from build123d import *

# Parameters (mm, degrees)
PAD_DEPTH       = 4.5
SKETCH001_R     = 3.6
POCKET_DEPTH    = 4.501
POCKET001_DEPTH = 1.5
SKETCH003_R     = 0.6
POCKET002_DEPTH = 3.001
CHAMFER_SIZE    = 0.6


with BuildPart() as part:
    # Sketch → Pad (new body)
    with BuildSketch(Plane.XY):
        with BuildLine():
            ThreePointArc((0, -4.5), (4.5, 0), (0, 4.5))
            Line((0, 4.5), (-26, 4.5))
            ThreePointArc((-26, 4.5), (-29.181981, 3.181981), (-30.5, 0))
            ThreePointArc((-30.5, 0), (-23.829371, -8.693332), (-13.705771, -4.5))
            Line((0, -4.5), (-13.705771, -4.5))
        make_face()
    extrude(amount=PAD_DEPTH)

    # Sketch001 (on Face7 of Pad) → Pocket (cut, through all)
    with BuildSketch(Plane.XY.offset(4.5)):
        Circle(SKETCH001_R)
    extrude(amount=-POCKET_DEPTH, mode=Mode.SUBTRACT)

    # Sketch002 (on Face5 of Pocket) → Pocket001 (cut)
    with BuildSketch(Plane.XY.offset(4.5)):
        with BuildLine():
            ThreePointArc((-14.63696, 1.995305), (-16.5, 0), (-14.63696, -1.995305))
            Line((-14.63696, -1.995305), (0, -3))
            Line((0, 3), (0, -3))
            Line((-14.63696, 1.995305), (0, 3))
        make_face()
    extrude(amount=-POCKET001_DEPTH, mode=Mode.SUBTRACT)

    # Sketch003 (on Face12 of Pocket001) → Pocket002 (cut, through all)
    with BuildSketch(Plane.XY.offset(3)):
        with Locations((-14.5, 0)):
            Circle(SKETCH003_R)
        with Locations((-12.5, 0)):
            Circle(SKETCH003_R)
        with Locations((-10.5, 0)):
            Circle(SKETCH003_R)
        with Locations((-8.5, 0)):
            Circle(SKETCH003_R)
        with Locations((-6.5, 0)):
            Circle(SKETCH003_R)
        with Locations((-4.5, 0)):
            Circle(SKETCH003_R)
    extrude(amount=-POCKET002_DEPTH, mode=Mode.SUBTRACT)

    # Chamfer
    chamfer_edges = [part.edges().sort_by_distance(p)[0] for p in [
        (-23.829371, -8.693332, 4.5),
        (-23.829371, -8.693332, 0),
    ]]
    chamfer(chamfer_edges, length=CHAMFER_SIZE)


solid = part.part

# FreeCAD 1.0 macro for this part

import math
import FreeCAD as App
import Part
import Sketcher

V = App.Vector


def edges_at(feature, points):
    """Names of the edges that pass closest to the given points."""
    edges = feature.Shape.Edges
    near = lambda p: min(range(len(edges)), key=lambda i: edges[i].distToShape(Part.Vertex(*p))[0])
    return sorted({f"Edge{near(p) + 1}" for p in points})

doc = App.newDocument("Part")
params = doc.addObject("Spreadsheet::Sheet", "Params")
for row, (alias, value) in enumerate([
    ("sketch1_radius", "9 mm"),
    ("sketch1_radius2", "4.5 mm"),
    ("sketch1_width", "26 mm"),
    ("pad1_length", "4.5 mm"),
    ("sketch2_diameter", "7.2 mm"),
    ("sketch3_radius", "2 mm"),
    ("sketch3_height", "6 mm"),
    ("pocket2_length", "1.5 mm"),
    ("sketch4_diameter", "1.2 mm"),
    ("chamfer_size", "0.6 mm"),
], start=1):
    params.set(f"A{row}", alias)
    params.set(f"B{row}", "=" + value)
    params.setAlias(f"B{row}", alias)

body = doc.addObject("PartDesign::Body", "Body")

# Sketch on XY plane
sketch1 = body.newObject("Sketcher::SketchObject", "Sketch")
sketch1.AttachmentSupport = (doc.getObject("XY_Plane"), [""])
sketch1.MapMode = "FlatFace"
sketch1.addGeometry(Part.ArcOfCircle(Part.Circle(V(0, 0, 0), V(0, 0, 1), 4.5), math.radians(-90), math.radians(90)), False)
sketch1.addGeometry(Part.LineSegment(V(0, 4.5, 0), V(-26, 4.5, 0)), False)
sketch1.addGeometry(Part.ArcOfCircle(Part.Circle(V(-26.000002, 0.000002, 0), V(0, 0, 1), 4.499998), math.radians(89.999979), math.radians(180.000021)), False)
sketch1.addGeometry(Part.ArcOfCircle(Part.Circle(V(-21.5, 0.000001, 0), V(0, 0, 1), 9), math.radians(-179.999995), math.radians(-30.000005)), False)
sketch1.addGeometry(Part.LineSegment(V(-13.705771, -4.5, 0), V(0, -4.5, 0)), False)
sketch1.addConstraint(Sketcher.Constraint("Tangent", 0, 2, 1, 1))
sketch1.addConstraint(Sketcher.Constraint("Tangent", 1, 2, 2, 1))
sketch1.addConstraint(Sketcher.Constraint("Tangent", 2, 2, 3, 1))
sketch1.addConstraint(Sketcher.Constraint("Coincident", 3, 2, 4, 1))
sketch1.addConstraint(Sketcher.Constraint("Tangent", 4, 2, 0, 1))
sketch1.addConstraint(Sketcher.Constraint("Horizontal", 1))
sketch1.addConstraint(Sketcher.Constraint("Horizontal", 4))
sketch1.addConstraint(Sketcher.Constraint("Coincident", 0, 3, -1, 1))
sketch1.addConstraint(Sketcher.Constraint("Equal", 0, 2))
sketch1.addConstraint(Sketcher.Constraint("PointOnObject", 3, 3, -1))
sketch1.addConstraint(Sketcher.Constraint("Radius", 3, 9.0))
sketch1.addConstraint(Sketcher.Constraint("Radius", 0, 4.5))
sketch1.addConstraint(Sketcher.Constraint("DistanceX", 1, 2, 1, 1, 26.0))
sketch1.setExpression("Constraints[10]", "Params.sketch1_radius")
sketch1.setExpression("Constraints[11]", "Params.sketch1_radius2")
sketch1.setExpression("Constraints[12]", "Params.sketch1_width")
pad1 = body.newObject("PartDesign::Pad", "Pad")
pad1.Profile = sketch1
pad1.setExpression("Length", "Params.pad1_length")

# Sketch on XY plane
sketch2 = body.newObject("Sketcher::SketchObject", "Sketch001")
sketch2.AttachmentSupport = (doc.getObject("XY_Plane"), [""])
sketch2.MapMode = "FlatFace"
sketch2.AttachmentOffset = App.Placement(V(0, 0, 4.5), App.Rotation())
sketch2.addGeometry(Part.Circle(V(0, 0, 0), V(0, 0, 1), 3.6), False)
sketch2.addConstraint(Sketcher.Constraint("Coincident", 0, 3, -1, 1))
sketch2.addConstraint(Sketcher.Constraint("Diameter", 0, 7.2))
sketch2.setExpression("Constraints[1]", "Params.sketch2_diameter")
pocket1 = body.newObject("PartDesign::Pocket", "Pocket")
pocket1.Profile = sketch2
pocket1.Type = "ThroughAll"

# Sketch on XY plane
sketch3 = body.newObject("Sketcher::SketchObject", "Sketch002")
sketch3.AttachmentSupport = (doc.getObject("XY_Plane"), [""])
sketch3.MapMode = "FlatFace"
sketch3.AttachmentOffset = App.Placement(V(0, 0, 4.5), App.Rotation())
sketch3.addGeometry(Part.ArcOfCircle(Part.Circle(V(-14.5, 0, 0), V(0, 0, 1), 2), math.radians(93.926689), math.radians(266.073311)), False)
sketch3.addGeometry(Part.LineSegment(V(-14.63696, -1.995305, 0), V(0, -3, 0)), False)
sketch3.addGeometry(Part.LineSegment(V(0, -3, 0), V(0, 3, 0)), False)
sketch3.addGeometry(Part.LineSegment(V(0, 3, 0), V(-14.63696, 1.995305, 0)), False)
sketch3.addConstraint(Sketcher.Constraint("Tangent", 0, 2, 1, 1))
sketch3.addConstraint(Sketcher.Constraint("Coincident", 1, 2, 2, 1))
sketch3.addConstraint(Sketcher.Constraint("Coincident", 2, 2, 3, 1))
sketch3.addConstraint(Sketcher.Constraint("Tangent", 3, 2, 0, 1))
sketch3.addConstraint(Sketcher.Constraint("Vertical", 2))
sketch3.addConstraint(Sketcher.Constraint("Symmetric", 1, 2, 2, 2, -1, 1))
sketch3.addConstraint(Sketcher.Constraint("PointOnObject", 0, 3, -1))
sketch3.addConstraint(Sketcher.Constraint("Radius", 0, 2.0))
sketch3.addConstraint(Sketcher.Constraint("DistanceY", 2, 1, 2, 2, 6.0))
sketch3.addConstraint(Sketcher.Constraint("DistanceX", 0, 3, -1, 1, 14.5))
sketch3.setExpression("Constraints[7]", "Params.sketch3_radius")
sketch3.setExpression("Constraints[8]", "Params.sketch3_height")
pocket2 = body.newObject("PartDesign::Pocket", "Pocket001")
pocket2.Profile = sketch3
pocket2.setExpression("Length", "Params.pocket2_length")

# Sketch on XY plane
sketch4 = body.newObject("Sketcher::SketchObject", "Sketch003")
sketch4.AttachmentSupport = (doc.getObject("XY_Plane"), [""])
sketch4.MapMode = "FlatFace"
sketch4.AttachmentOffset = App.Placement(V(0, 0, 3), App.Rotation())
sketch4.addGeometry(Part.Circle(V(-14.5, 0, 0), V(0, 0, 1), 0.6), False)
sketch4.addGeometry(Part.Circle(V(-12.5, 0, 0), V(0, 0, 1), 0.6), False)
sketch4.addGeometry(Part.Circle(V(-10.5, 0, 0), V(0, 0, 1), 0.6), False)
sketch4.addGeometry(Part.Circle(V(-8.5, 0, 0), V(0, 0, 1), 0.6), False)
sketch4.addGeometry(Part.Circle(V(-6.5, 0, 0), V(0, 0, 1), 0.6), False)
sketch4.addGeometry(Part.Circle(V(-4.5, 0, 0), V(0, 0, 1), 0.6), False)
sketch4.addConstraint(Sketcher.Constraint("Equal", 0, 1))
sketch4.addConstraint(Sketcher.Constraint("Equal", 1, 2))
sketch4.addConstraint(Sketcher.Constraint("Equal", 2, 3))
sketch4.addConstraint(Sketcher.Constraint("Equal", 3, 4))
sketch4.addConstraint(Sketcher.Constraint("Equal", 4, 5))
sketch4.addConstraint(Sketcher.Constraint("PointOnObject", 0, 3, -1))
sketch4.addConstraint(Sketcher.Constraint("PointOnObject", 1, 3, -1))
sketch4.addConstraint(Sketcher.Constraint("PointOnObject", 2, 3, -1))
sketch4.addConstraint(Sketcher.Constraint("PointOnObject", 3, 3, -1))
sketch4.addConstraint(Sketcher.Constraint("PointOnObject", 4, 3, -1))
sketch4.addConstraint(Sketcher.Constraint("PointOnObject", 5, 3, -1))
sketch4.addConstraint(Sketcher.Constraint("Diameter", 0, 1.2))
sketch4.addConstraint(Sketcher.Constraint("DistanceX", 0, 3, 1, 3, 2.0))
sketch4.addConstraint(Sketcher.Constraint("DistanceX", 1, 3, 2, 3, 2.0))
sketch4.addConstraint(Sketcher.Constraint("DistanceX", 2, 3, 3, 3, 2.0))
sketch4.addConstraint(Sketcher.Constraint("DistanceX", 3, 3, 4, 3, 2.0))
sketch4.addConstraint(Sketcher.Constraint("DistanceX", 4, 3, 5, 3, 2.0))
sketch4.addConstraint(Sketcher.Constraint("DistanceX", 0, 3, -1, 1, 14.5))
sketch4.setExpression("Constraints[11]", "Params.sketch4_diameter")
pocket3 = body.newObject("PartDesign::Pocket", "Pocket002")
pocket3.Profile = sketch4
pocket3.Type = "ThroughAll"
doc.recompute()

chamfer = body.newObject("PartDesign::Chamfer", "Chamfer")
chamfer.Base = (pocket3, edges_at(pocket3, [(-23.829, -8.693, 4.5), (-23.829, -8.693, 0)]))
chamfer.setExpression("Size", "Params.chamfer_size")

doc.recompute()
